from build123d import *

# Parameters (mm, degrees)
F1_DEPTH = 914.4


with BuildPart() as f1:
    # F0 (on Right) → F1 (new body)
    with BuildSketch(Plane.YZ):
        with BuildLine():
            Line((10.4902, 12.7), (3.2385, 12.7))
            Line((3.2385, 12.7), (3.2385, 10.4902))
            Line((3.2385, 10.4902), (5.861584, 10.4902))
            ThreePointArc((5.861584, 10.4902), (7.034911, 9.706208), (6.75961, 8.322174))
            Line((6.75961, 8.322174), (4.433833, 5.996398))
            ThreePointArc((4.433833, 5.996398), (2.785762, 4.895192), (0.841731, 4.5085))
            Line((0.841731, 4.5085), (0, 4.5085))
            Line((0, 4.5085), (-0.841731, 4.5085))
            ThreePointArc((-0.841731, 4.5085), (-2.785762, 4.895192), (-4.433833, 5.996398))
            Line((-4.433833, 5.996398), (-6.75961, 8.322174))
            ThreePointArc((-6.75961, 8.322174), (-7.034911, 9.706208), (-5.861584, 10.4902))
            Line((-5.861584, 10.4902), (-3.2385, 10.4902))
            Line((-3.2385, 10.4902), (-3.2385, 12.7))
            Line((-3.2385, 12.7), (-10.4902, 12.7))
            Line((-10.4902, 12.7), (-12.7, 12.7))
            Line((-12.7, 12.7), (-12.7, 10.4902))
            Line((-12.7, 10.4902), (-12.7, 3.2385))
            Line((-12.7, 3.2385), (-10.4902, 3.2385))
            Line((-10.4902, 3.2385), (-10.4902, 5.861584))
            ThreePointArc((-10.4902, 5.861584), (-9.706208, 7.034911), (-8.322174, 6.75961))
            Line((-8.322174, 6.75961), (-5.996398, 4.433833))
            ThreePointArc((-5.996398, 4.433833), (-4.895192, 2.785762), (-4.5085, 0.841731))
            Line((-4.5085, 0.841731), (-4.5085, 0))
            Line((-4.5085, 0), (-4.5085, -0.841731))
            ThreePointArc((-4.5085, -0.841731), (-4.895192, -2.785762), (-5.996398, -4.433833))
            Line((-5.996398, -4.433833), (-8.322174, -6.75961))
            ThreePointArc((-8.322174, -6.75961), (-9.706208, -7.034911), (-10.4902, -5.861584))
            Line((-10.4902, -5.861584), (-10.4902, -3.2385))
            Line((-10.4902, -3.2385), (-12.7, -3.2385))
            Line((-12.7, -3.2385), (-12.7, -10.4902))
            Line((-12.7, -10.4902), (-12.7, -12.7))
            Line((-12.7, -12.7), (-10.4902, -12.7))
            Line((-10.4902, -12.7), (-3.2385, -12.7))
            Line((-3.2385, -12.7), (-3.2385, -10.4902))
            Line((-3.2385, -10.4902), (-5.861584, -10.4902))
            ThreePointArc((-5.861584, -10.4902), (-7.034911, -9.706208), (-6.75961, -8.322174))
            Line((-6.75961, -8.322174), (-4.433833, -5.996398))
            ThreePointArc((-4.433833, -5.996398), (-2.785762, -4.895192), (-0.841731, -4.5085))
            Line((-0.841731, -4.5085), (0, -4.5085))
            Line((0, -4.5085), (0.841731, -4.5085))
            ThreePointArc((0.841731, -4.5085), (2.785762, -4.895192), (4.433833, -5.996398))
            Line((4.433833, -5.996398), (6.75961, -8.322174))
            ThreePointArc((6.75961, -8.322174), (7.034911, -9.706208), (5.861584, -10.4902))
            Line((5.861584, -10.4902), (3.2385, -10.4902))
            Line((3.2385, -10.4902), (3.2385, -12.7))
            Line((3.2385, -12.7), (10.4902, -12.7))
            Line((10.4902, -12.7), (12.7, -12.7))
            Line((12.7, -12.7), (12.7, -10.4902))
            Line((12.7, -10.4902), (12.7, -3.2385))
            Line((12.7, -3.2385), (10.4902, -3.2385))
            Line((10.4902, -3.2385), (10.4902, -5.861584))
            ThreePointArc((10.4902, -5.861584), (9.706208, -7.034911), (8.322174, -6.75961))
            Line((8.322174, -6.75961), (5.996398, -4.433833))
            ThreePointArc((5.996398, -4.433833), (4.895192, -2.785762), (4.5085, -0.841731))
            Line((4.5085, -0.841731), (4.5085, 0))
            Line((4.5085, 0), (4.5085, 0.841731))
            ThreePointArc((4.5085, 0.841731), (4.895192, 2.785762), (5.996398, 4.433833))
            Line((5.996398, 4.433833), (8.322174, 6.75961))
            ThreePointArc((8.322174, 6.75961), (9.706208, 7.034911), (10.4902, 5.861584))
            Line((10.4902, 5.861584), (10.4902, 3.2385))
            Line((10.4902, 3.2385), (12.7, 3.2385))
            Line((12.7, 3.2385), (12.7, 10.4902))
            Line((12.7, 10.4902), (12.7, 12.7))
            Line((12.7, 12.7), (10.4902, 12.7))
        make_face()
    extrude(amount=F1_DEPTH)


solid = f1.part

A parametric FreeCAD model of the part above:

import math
import FreeCAD as App
import Part
import Sketcher
from FreeCAD import Vector
Q = App.Units.Quantity

doc = App.newDocument("Part")
body = doc.addObject("PartDesign::Body", "Body")

sketch1 = doc.addObject("Sketcher::SketchObject", "Sketch")
body.addObject(sketch1)
sketch1.AttachmentSupport = (doc.YZ_Plane, [""])
sketch1.MapMode = "FlatFace"
sketch1.addGeometry([
    Part.LineSegment(Vector(3.2, 12.7, 0), Vector(3.2, 10.5, 0)),
    Part.LineSegment(Vector(3.2, 10.5, 0), Vector(5.9, 10.5, 0)),
    Part.ArcOfCircle(Part.Circle(Vector(5.9, 9.2, 0), Vector(0, 0, 1), 1.3), math.radians(-45), math.radians(90)),
    Part.LineSegment(Vector(6.8, 8.3, 0), Vector(4.4, 6, 0)),
    Part.ArcOfCircle(Part.Circle(Vector(0.8, 9.6, 0), Vector(0, 0, 1), 5.1), math.radians(-90), math.radians(-45)),
    Part.LineSegment(Vector(0.8, 4.5, 0), Vector(-0.8, 4.5, 0)),
    Part.ArcOfCircle(Part.Circle(Vector(-0.8, 9.6, 0), Vector(0, 0, 1), 5.1), math.radians(-135), math.radians(-90)),
    Part.LineSegment(Vector(-4.4, 6, 0), Vector(-6.8, 8.3, 0)),
    Part.ArcOfCircle(Part.Circle(Vector(-5.9, 9.2, 0), Vector(0, 0, 1), 1.3), math.radians(90), math.radians(225)),
    Part.LineSegment(Vector(-5.9, 10.5, 0), Vector(-3.2, 10.5, 0)),
    Part.LineSegment(Vector(-3.2, 10.5, 0), Vector(-3.2, 12.7, 0)),
    Part.LineSegment(Vector(-3.2, 12.7, 0), Vector(-12.7, 12.7, 0)),
    Part.LineSegment(Vector(-12.7, 12.7, 0), Vector(-12.7, 3.2, 0)),
    Part.LineSegment(Vector(-12.7, 3.2, 0), Vector(-10.5, 3.2, 0)),
    Part.LineSegment(Vector(-10.5, 3.2, 0), Vector(-10.5, 5.9, 0)),
    Part.ArcOfCircle(Part.Circle(Vector(-9.2, 5.9, 0), Vector(0, 0, 1), 1.3), math.radians(45), math.radians(180)),
    Part.LineSegment(Vector(-8.3, 6.8, 0), Vector(-6, 4.4, 0)),
    Part.ArcOfCircle(Part.Circle(Vector(-9.6, 0.8, 0), Vector(0, 0, 1), 5.1), math.radians(0), math.radians(45)),
    Part.LineSegment(Vector(-4.5, 0.8, 0), Vector(-4.5, -0.8, 0)),
    Part.ArcOfCircle(Part.Circle(Vector(-9.6, -0.8, 0), Vector(0, 0, 1), 5.1), math.radians(-45), math.radians(0)),
    Part.LineSegment(Vector(-6, -4.4, 0), Vector(-8.3, -6.8, 0)),
    Part.ArcOfCircle(Part.Circle(Vector(-9.2, -5.9, 0), Vector(0, 0, 1), 1.3), math.radians(-180), math.radians(-45)),
    Part.LineSegment(Vector(-10.5, -5.9, 0), Vector(-10.5, -3.2, 0)),
    Part.LineSegment(Vector(-10.5, -3.2, 0), Vector(-12.7, -3.2, 0)),
    Part.LineSegment(Vector(-12.7, -3.2, 0), Vector(-12.7, -12.7, 0)),
    Part.LineSegment(Vector(-12.7, -12.7, 0), Vector(-3.2, -12.7, 0)),
    Part.LineSegment(Vector(-3.2, -12.7, 0), Vector(-3.2, -10.5, 0)),
    Part.LineSegment(Vector(-3.2, -10.5, 0), Vector(-5.9, -10.5, 0)),
    Part.ArcOfCircle(Part.Circle(Vector(-5.9, -9.2, 0), Vector(0, 0, 1), 1.3), math.radians(135), math.radians(270)),
    Part.LineSegment(Vector(-6.8, -8.3, 0), Vector(-4.4, -6, 0)),
    Part.ArcOfCircle(Part.Circle(Vector(-0.8, -9.6, 0), Vector(0, 0, 1), 5.1), math.radians(90), math.radians(135)),
    Part.LineSegment(Vector(-0.8, -4.5, 0), Vector(0.8, -4.5, 0)),
    Part.ArcOfCircle(Part.Circle(Vector(0.8, -9.6, 0), Vector(0, 0, 1), 5.1), math.radians(45), math.radians(90)),
    Part.LineSegment(Vector(4.4, -6, 0), Vector(6.8, -8.3, 0)),
    Part.ArcOfCircle(Part.Circle(Vector(5.9, -9.2, 0), Vector(0, 0, 1), 1.3), math.radians(-90), math.radians(45)),
    Part.LineSegment(Vector(5.9, -10.5, 0), Vector(3.2, -10.5, 0)),
    Part.LineSegment(Vector(3.2, -10.5, 0), Vector(3.2, -12.7, 0)),
    Part.LineSegment(Vector(3.2, -12.7, 0), Vector(12.7, -12.7, 0)),
    Part.LineSegment(Vector(12.7, -12.7, 0), Vector(12.7, -3.2, 0)),
    Part.LineSegment(Vector(12.7, -3.2, 0), Vector(10.5, -3.2, 0)),
    Part.LineSegment(Vector(10.5, -3.2, 0), Vector(10.5, -5.9, 0)),
    Part.ArcOfCircle(Part.Circle(Vector(9.2, -5.9, 0), Vector(0, 0, 1), 1.3), math.radians(-135), math.radians(0)),
    Part.LineSegment(Vector(8.3, -6.8, 0), Vector(6, -4.4, 0)),
    Part.ArcOfCircle(Part.Circle(Vector(9.6, -0.8, 0), Vector(0, 0, 1), 5.1), math.radians(-180), math.radians(-135)),
    Part.LineSegment(Vector(4.5, -0.8, 0), Vector(4.5, 0.8, 0)),
    Part.ArcOfCircle(Part.Circle(Vector(9.6, 0.8, 0), Vector(0, 0, 1), 5.1), math.radians(135), math.radians(180)),
    Part.LineSegment(Vector(6, 4.4, 0), Vector(8.3, 6.8, 0)),
    Part.ArcOfCircle(Part.Circle(Vector(9.2, 5.9, 0), Vector(0, 0, 1), 1.3), math.radians(0), math.radians(135)),
    Part.LineSegment(Vector(10.5, 5.9, 0), Vector(10.5, 3.2, 0)),
    Part.LineSegment(Vector(10.5, 3.2, 0), Vector(12.7, 3.2, 0)),
    Part.LineSegment(Vector(12.7, 3.2, 0), Vector(12.7, 12.7, 0)),
    Part.LineSegment(Vector(12.7, 12.7, 0), Vector(3.2, 12.7, 0)),
], False)
sketch1.addConstraint([
    Sketcher.Constraint("Coincident", 0, 2, 1, 1),
    Sketcher.Constraint("Tangent", 1, 2, 2, 2),
    Sketcher.Constraint("Tangent", 2, 1, 3, 1),
    Sketcher.Constraint("Tangent", 3, 2, 4, 2),
    Sketcher.Constraint("Tangent", 4, 1, 5, 1),
    Sketcher.Constraint("Tangent", 5, 2, 6, 2),
    Sketcher.Constraint("Tangent", 6, 1, 7, 1),
    Sketcher.Constraint("Tangent", 7, 2, 8, 2),
    Sketcher.Constraint("Tangent", 8, 1, 9, 1),
    Sketcher.Constraint("Coincident", 9, 2, 10, 1),
    Sketcher.Constraint("Coincident", 10, 2, 11, 1),
    Sketcher.Constraint("Coincident", 11, 2, 12, 1),
    Sketcher.Constraint("Coincident", 12, 2, 13, 1),
    Sketcher.Constraint("Coincident", 13, 2, 14, 1),
    Sketcher.Constraint("Tangent", 14, 2, 15, 2),
    Sketcher.Constraint("Tangent", 15, 1, 16, 1),
    Sketcher.Constraint("Tangent", 16, 2, 17, 2),
    Sketcher.Constraint("Tangent", 17, 1, 18, 1),
    Sketcher.Constraint("Tangent", 18, 2, 19, 2),
    Sketcher.Constraint("Tangent", 19, 1, 20, 1),
    Sketcher.Constraint("Tangent", 20, 2, 21, 2),
    Sketcher.Constraint("Tangent", 21, 1, 22, 1),
    Sketcher.Constraint("Coincident", 22, 2, 23, 1),
    Sketcher.Constraint("Coincident", 23, 2, 24, 1),
    Sketcher.Constraint("Coincident", 24, 2, 25, 1),
    Sketcher.Constraint("Coincident", 25, 2, 26, 1),
    Sketcher.Constraint("Coincident", 26, 2, 27, 1),
    Sketcher.Constraint("Tangent", 27, 2, 28, 2),
    Sketcher.Constraint("Tangent", 28, 1, 29, 1),
    Sketcher.Constraint("Tangent", 29, 2, 30, 2),
    Sketcher.Constraint("Tangent", 30, 1, 31, 1),
    Sketcher.Constraint("Tangent", 31, 2, 32, 2),
    Sketcher.Constraint("Tangent", 32, 1, 33, 1),
    Sketcher.Constraint("Tangent", 33, 2, 34, 2),
    Sketcher.Constraint("Tangent", 34, 1, 35, 1),
    Sketcher.Constraint("Coincident", 35, 2, 36, 1),
    Sketcher.Constraint("Coincident", 36, 2, 37, 1),
    Sketcher.Constraint("Coincident", 37, 2, 38, 1),
    Sketcher.Constraint("Coincident", 38, 2, 39, 1),
    Sketcher.Constraint("Coincident", 39, 2, 40, 1),
    Sketcher.Constraint("Tangent", 40, 2, 41, 2),
    Sketcher.Constraint("Tangent", 41, 1, 42, 1),
    Sketcher.Constraint("Tangent", 42, 2, 43, 2),
    Sketcher.Constraint("Tangent", 43, 1, 44, 1),
    Sketcher.Constraint("Tangent", 44, 2, 45, 2),
    Sketcher.Constraint("Tangent", 45, 1, 46, 1),
    Sketcher.Constraint("Tangent", 46, 2, 47, 2),
    Sketcher.Constraint("Tangent", 47, 1, 48, 1),
    Sketcher.Constraint("Coincident", 48, 2, 49, 1),
    Sketcher.Constraint("Coincident", 49, 2, 50, 1),
    Sketcher.Constraint("Coincident", 50, 2, 51, 1),
    Sketcher.Constraint("Coincident", 51, 2, 0, 1),
    Sketcher.Constraint("Vertical", 0),
    Sketcher.Constraint("Horizontal", 1),
    Sketcher.Constraint("Horizontal", 5),
    Sketcher.Constraint("Horizontal", 9),
    Sketcher.Constraint("Vertical", 10),
    Sketcher.Constraint("Horizontal", 11),
    Sketcher.Constraint("Vertical", 12),
    Sketcher.Constraint("Horizontal", 13),
    Sketcher.Constraint("Vertical", 14),
    Sketcher.Constraint("Vertical", 18),
    Sketcher.Constraint("Vertical", 22),
    Sketcher.Constraint("Horizontal", 23),
    Sketcher.Constraint("Vertical", 24),
    Sketcher.Constraint("Horizontal", 25),
    Sketcher.Constraint("Vertical", 26),
    Sketcher.Constraint("Horizontal", 27),
    Sketcher.Constraint("Horizontal", 31),
    Sketcher.Constraint("Horizontal", 35),
    Sketcher.Constraint("Vertical", 36),
    Sketcher.Constraint("Horizontal", 37),
    Sketcher.Constraint("Vertical", 38),
    Sketcher.Constraint("Horizontal", 39),
    Sketcher.Constraint("Vertical", 40),
    Sketcher.Constraint("Vertical", 44),
    Sketcher.Constraint("Vertical", 48),
    Sketcher.Constraint("Horizontal", 49),
    Sketcher.Constraint("Vertical", 50),
    Sketcher.Constraint("Horizontal", 51),
    Sketcher.Constraint("Equal", 4, 6),
    Sketcher.Constraint("Equal", 2, 8),
    Sketcher.Constraint("Equal", 8, 15),
    Sketcher.Constraint("Equal", 6, 17),
    Sketcher.Constraint("Equal", 17, 19),
    Sketcher.Constraint("Equal", 15, 21),
    Sketcher.Constraint("Equal", 21, 28),
    Sketcher.Constraint("Equal", 19, 30),
    Sketcher.Constraint("Equal", 30, 32),
    Sketcher.Constraint("Equal", 28, 34),
    Sketcher.Constraint("Equal", 34, 41),
    Sketcher.Constraint("Equal", 32, 43),
    Sketcher.Constraint("Equal", 43, 45),
    Sketcher.Constraint("Equal", 41, 47),
    Sketcher.Constraint("Symmetric", 2, 3, 28, 3, -1, 1),
    Sketcher.Constraint("Symmetric", 4, 3, 30, 3, -1, 1),
    Sketcher.Constraint("Symmetric", 8, 3, 34, 3, -1, 1),
    Sketcher.Constraint("Symmetric", 15, 3, 41, 3, -1, 1),
    Sketcher.Constraint("Symmetric", 17, 3, 43, 3, -1, 1),
    Sketcher.Constraint("Symmetric", 21, 3, 47, 3, -1, 1),
    Sketcher.Constraint("Symmetric", 10, 2, 36, 2, -1, 1),
    Sketcher.Constraint("Symmetric", 12, 2, 38, 2, -1, 1),
    Sketcher.Constraint("Symmetric", 23, 2, 49, 2, -1, 1),
    Sketcher.Constraint("Symmetric", 25, 2, 51, 2, -1, 1),
    Sketcher.Constraint("Symmetric", 2, 3, 8, 3, -2),
    Sketcher.Constraint("Symmetric", 21, 3, 41, 3, -2),
    Sketcher.Constraint("Symmetric", 25, 2, 36, 2, -2),
    Sketcher.Constraint("Symmetric", 23, 2, 38, 2, -2),
    Sketcher.Constraint("Perpendicular", 3, 7),
    Sketcher.Constraint("Parallel", 7, 16),
    Sketcher.Constraint("Perpendicular", 16, 20),
    Sketcher.Constraint("Perpendicular", 29, 33),
    Sketcher.Constraint("Perpendicular", 42, 46),
    Sketcher.Constraint("Horizontal", 19, 3, 43, 3),
    Sketcher.Constraint("Equal", 49, 0),
    Sketcher.Constraint("Equal", 51, 12),
    Sketcher.Constraint("Equal", 35, 14),
    Sketcher.Constraint("Equal", 31, 18),
    Sketcher.Constraint("Equal", 7, 16),
    Sketcher.Constraint("Radius", 4, Q("0.2 in")),
    Sketcher.Constraint("Radius", 2, Q("0.05 in")),
    Sketcher.Constraint("DistanceY", -1, 1, 10, 2, Q("0.5 in")),
    Sketcher.Constraint("DistanceX", 13, 1, 13, 2, Q("0.087 in")),
    Sketcher.Constraint("DistanceX", 11, 2, 11, 1, Q("0.3725 in")),
    Sketcher.Constraint("DistanceY", -1, 1, 4, 3, Q("0.3775 in")),
    Sketcher.Constraint("DistanceX", 1, 1, 1, 2, 2.623084),
])
pad1 = doc.addObject("PartDesign::Pad", "Pad")
body.addObject(pad1)
pad1.Profile = sketch1
pad1.Length = Q("36 in")

doc.recompute()
